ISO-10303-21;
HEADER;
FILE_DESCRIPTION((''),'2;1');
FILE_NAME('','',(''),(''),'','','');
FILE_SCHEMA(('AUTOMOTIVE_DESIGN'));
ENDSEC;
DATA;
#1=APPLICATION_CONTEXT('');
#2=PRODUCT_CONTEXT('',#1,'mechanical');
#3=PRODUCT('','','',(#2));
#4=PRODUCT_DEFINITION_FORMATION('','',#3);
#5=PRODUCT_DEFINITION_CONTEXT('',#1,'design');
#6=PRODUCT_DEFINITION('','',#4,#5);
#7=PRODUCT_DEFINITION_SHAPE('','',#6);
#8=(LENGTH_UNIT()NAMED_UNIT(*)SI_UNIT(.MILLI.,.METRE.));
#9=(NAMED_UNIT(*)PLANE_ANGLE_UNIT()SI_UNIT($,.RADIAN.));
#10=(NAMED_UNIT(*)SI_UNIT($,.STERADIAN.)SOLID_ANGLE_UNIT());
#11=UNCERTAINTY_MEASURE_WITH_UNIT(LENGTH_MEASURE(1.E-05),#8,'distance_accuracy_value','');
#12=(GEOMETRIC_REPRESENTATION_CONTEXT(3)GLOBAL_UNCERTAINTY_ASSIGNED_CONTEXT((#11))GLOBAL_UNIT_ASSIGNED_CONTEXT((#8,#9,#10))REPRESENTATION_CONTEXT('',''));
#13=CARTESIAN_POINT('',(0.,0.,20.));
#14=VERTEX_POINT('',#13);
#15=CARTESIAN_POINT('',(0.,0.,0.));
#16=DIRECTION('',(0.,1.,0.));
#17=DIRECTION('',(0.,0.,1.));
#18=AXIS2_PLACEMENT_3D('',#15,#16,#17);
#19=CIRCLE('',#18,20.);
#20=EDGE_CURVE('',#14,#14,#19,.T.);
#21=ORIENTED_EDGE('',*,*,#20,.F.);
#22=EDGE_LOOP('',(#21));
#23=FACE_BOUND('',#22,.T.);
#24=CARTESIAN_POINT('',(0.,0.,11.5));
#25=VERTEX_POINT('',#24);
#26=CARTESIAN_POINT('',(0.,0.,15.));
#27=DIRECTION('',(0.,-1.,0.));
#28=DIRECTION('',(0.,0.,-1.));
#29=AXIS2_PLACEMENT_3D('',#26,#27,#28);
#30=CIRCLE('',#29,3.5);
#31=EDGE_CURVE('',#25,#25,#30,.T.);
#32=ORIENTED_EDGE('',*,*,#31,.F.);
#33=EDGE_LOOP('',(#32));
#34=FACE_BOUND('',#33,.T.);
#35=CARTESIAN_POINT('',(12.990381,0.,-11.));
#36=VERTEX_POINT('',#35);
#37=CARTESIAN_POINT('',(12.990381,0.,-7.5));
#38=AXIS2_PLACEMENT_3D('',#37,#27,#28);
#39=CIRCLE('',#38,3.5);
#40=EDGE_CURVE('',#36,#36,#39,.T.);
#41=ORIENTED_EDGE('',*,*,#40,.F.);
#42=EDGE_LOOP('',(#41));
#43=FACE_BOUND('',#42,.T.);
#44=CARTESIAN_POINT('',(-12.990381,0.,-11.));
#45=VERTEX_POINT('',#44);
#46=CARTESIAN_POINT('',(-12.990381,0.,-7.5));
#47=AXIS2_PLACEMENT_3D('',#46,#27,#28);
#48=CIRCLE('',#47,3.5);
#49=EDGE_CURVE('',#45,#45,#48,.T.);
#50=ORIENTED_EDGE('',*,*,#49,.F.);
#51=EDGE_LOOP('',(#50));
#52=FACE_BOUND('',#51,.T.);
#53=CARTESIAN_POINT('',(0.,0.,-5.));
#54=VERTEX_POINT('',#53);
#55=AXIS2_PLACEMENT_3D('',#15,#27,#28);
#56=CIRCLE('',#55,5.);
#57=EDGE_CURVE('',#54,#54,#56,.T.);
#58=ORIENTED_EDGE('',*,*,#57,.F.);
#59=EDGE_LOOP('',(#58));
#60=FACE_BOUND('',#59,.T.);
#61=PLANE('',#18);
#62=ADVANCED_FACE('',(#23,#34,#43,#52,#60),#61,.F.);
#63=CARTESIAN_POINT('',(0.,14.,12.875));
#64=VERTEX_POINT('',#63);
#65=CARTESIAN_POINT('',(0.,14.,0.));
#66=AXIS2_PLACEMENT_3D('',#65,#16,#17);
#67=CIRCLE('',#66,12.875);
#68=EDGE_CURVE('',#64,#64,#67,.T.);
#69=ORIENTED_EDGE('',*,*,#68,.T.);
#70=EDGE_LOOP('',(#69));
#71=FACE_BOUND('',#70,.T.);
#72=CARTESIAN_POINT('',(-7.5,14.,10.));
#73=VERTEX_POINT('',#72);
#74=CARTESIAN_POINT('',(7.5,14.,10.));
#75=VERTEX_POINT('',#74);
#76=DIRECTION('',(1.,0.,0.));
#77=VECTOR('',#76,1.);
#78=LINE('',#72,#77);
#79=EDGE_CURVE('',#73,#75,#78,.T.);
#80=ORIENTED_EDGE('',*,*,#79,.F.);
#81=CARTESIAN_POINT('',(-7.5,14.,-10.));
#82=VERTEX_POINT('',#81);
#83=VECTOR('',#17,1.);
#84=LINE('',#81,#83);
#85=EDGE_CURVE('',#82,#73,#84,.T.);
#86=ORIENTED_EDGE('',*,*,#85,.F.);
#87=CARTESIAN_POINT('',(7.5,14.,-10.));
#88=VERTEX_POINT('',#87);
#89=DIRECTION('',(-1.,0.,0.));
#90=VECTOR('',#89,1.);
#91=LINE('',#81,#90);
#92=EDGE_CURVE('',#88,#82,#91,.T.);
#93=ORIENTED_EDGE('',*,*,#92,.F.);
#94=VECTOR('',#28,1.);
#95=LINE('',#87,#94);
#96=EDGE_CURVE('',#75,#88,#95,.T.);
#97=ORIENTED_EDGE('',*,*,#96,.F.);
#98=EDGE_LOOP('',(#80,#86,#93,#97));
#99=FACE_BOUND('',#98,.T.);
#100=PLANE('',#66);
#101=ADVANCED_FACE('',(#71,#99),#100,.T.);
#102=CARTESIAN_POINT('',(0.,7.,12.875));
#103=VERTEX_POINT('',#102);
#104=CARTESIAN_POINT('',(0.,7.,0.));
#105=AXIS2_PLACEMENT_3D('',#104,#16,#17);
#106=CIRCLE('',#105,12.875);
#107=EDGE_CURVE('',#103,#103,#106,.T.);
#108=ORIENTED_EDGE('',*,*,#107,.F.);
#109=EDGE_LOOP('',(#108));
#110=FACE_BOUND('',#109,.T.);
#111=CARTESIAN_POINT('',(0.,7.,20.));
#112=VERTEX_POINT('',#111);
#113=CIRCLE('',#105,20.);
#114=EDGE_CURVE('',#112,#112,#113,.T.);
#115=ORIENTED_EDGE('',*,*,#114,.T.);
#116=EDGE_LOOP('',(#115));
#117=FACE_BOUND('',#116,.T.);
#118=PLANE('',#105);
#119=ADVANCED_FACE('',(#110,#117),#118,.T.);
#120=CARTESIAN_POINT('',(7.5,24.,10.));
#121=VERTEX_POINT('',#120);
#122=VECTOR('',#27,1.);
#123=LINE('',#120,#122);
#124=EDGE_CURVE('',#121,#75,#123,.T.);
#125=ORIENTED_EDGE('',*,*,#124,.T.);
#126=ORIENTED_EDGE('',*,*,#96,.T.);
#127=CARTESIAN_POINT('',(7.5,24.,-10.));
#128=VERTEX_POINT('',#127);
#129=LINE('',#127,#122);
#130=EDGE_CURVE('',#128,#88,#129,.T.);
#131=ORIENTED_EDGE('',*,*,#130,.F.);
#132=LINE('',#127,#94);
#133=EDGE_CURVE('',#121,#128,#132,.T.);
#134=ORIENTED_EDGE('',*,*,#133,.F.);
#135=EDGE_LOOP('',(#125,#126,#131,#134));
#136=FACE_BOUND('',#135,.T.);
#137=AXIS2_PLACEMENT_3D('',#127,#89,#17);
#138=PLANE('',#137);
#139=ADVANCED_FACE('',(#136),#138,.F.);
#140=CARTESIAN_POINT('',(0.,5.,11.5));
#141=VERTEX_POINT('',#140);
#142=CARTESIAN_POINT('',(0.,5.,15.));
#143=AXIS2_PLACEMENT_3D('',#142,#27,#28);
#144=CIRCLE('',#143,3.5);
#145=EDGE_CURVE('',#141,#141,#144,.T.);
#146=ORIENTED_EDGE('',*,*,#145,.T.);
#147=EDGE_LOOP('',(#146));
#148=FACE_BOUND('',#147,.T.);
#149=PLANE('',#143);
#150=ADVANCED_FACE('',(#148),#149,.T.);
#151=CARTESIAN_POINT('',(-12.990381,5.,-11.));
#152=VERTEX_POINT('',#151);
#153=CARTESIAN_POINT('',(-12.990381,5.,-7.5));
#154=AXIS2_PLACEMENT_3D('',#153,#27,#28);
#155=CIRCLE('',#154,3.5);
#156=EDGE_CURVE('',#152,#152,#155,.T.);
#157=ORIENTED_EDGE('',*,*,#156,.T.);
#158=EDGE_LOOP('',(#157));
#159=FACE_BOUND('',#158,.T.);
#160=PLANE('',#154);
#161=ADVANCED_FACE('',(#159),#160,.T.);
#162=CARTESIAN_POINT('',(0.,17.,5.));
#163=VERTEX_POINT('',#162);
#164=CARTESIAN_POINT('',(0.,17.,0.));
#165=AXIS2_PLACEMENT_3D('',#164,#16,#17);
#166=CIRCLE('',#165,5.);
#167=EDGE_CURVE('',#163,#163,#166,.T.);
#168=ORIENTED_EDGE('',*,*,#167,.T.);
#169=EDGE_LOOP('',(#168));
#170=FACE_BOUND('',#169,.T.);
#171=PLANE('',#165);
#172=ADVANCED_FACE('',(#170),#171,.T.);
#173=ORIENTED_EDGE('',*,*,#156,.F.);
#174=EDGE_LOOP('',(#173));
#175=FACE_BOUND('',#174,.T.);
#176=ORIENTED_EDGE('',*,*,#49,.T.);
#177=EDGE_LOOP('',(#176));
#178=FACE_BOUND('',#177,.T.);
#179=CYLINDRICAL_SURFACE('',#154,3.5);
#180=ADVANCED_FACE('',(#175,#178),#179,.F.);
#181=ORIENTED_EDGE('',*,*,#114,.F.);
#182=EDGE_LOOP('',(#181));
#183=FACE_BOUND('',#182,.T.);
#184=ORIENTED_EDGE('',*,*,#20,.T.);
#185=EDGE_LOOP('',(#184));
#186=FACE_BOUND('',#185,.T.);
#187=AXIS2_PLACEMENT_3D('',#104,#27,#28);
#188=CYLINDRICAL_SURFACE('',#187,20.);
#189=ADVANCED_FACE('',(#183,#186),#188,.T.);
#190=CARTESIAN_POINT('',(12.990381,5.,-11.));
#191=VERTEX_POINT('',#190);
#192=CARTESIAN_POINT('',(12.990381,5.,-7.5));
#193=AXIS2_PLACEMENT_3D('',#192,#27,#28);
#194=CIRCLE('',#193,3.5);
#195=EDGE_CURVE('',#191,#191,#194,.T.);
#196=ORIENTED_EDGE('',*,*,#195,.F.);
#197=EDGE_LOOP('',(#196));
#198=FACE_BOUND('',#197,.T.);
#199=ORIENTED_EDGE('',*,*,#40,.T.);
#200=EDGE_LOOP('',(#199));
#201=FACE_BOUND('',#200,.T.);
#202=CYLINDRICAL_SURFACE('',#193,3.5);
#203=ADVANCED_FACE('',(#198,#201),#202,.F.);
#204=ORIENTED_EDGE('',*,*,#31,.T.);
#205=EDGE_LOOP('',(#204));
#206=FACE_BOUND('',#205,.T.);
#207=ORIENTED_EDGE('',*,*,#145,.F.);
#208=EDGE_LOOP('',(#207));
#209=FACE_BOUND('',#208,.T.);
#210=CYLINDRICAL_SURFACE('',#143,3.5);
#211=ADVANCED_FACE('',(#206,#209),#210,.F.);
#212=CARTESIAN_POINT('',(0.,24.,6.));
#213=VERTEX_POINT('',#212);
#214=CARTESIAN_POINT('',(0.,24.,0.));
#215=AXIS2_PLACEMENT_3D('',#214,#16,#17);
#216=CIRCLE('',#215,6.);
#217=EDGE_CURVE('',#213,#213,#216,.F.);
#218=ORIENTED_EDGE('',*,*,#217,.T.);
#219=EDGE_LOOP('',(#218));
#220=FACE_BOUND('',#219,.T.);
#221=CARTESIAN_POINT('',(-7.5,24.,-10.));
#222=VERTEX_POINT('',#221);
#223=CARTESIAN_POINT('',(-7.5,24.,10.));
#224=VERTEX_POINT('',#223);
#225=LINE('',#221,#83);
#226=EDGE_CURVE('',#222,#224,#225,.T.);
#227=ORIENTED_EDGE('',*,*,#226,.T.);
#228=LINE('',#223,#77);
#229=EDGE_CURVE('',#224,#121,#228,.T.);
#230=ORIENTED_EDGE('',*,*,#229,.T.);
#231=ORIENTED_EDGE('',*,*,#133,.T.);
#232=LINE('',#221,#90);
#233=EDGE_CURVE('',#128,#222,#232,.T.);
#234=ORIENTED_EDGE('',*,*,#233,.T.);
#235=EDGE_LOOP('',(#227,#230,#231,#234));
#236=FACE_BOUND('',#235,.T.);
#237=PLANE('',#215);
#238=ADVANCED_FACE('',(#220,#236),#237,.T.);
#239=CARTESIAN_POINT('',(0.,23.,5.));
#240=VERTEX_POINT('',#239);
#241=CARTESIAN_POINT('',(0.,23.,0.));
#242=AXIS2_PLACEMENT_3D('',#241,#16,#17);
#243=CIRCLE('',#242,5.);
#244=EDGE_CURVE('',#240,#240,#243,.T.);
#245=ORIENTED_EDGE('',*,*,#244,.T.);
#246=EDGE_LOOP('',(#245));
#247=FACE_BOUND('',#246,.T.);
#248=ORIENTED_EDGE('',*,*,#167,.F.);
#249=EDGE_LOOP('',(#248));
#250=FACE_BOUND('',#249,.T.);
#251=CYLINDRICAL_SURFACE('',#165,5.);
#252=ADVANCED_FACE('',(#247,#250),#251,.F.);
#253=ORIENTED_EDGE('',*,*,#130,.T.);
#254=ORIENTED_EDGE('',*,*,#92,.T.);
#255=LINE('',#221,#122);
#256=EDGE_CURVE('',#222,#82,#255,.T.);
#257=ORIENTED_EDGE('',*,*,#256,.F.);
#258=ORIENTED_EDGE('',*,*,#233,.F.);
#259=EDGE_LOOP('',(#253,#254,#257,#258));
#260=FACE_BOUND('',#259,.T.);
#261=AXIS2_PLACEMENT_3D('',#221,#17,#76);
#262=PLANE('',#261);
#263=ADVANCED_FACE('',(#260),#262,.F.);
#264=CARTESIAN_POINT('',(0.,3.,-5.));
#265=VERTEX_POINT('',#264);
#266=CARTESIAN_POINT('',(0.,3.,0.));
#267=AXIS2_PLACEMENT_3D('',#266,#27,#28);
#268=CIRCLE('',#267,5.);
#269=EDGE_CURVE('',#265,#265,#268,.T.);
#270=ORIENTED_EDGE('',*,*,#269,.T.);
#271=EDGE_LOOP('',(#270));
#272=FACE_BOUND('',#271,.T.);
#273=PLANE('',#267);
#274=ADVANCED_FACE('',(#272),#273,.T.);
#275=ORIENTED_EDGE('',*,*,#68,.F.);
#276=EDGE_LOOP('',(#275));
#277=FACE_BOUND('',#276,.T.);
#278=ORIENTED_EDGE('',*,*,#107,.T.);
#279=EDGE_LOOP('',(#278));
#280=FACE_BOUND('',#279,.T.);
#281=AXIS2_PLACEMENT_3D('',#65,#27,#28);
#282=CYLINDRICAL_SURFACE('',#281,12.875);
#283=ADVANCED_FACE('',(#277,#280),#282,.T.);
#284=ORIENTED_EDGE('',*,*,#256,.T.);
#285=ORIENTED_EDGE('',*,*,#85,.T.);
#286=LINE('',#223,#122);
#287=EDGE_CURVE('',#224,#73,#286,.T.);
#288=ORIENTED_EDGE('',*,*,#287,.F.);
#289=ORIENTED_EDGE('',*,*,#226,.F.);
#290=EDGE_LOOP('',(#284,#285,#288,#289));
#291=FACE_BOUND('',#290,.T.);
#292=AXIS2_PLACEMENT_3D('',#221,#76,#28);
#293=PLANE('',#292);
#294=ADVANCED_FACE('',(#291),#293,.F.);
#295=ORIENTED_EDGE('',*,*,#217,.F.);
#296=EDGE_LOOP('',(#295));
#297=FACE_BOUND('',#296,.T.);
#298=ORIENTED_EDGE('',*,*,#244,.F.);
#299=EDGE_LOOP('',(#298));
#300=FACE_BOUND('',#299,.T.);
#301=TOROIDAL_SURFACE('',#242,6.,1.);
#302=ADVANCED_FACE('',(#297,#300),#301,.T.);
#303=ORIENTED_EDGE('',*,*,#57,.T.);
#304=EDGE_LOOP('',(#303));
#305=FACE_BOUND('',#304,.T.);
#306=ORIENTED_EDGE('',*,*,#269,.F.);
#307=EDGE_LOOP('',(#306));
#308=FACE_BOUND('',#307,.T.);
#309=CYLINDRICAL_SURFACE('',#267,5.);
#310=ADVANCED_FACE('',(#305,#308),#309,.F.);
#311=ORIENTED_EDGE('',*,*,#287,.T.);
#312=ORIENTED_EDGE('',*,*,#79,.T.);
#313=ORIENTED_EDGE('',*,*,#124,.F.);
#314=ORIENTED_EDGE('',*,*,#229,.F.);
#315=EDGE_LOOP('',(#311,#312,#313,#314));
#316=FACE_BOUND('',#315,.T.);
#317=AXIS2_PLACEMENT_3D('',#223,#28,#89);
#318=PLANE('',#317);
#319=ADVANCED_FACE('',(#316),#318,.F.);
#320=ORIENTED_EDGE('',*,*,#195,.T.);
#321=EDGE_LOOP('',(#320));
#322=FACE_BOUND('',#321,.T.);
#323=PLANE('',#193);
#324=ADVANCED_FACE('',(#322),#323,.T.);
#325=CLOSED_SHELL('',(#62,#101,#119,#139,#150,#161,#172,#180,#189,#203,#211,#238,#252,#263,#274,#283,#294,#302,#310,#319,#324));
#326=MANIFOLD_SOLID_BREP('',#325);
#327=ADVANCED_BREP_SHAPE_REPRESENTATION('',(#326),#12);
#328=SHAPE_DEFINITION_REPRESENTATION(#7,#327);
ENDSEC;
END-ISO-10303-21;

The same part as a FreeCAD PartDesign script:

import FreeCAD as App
import Part
import Sketcher


def edges_at(feature, points):
    """Names of the edges that pass closest to the given points."""
    edges = feature.Shape.Edges
    near = lambda p: min(range(len(edges)), key=lambda i: edges[i].distToShape(Part.Vertex(*p))[0])
    return sorted({f"Edge{near(p) + 1}" for p in points})


def add_polygon(sketch, points):
    """Adds a closed chain of lines whose ends are joined by coincident constraints."""
    first, n = sketch.GeometryCount, len(points)
    for a, b in zip(points, points[1:] + points[:1]):
        sketch.addGeometry(Part.LineSegment(App.Vector(*a, 0), App.Vector(*b, 0)), False)
    for i in range(n):
        sketch.addConstraint(Sketcher.Constraint("Coincident", first + i, 2, first + (i + 1) % n, 1))

doc = App.newDocument("Part")
body = doc.addObject("PartDesign::Body", "Body")

# Sketch on XZ plane
sketch1 = doc.addObject("Sketcher::SketchObject", "Sketch")
body.addObject(sketch1)
sketch1.AttachmentSupport = (doc.XZ_Plane, [""])
sketch1.MapMode = "FlatFace"
sketch1.addGeometry(Part.Circle(App.Vector(0, 0, 0), App.Vector(0, 0, 1), 20), False)
sketch1.addConstraint(Sketcher.Constraint("Coincident", 0, 3, -1, 1))
sketch1.addConstraint(Sketcher.Constraint("Diameter", 0, 40.0))
pad1 = doc.addObject("PartDesign::Pad", "Pad")
body.addObject(pad1)
pad1.Profile = sketch1
pad1.Length = 7
pad1.Reversed = True

# Sketch on XZ plane
sketch2 = doc.addObject("Sketcher::SketchObject", "Sketch001")
body.addObject(sketch2)
sketch2.AttachmentSupport = (doc.XZ_Plane, [""])
sketch2.MapMode = "FlatFace"
sketch2.AttachmentOffset = App.Placement(App.Vector(0, 0, -7), App.Rotation())
sketch2.addGeometry(Part.Circle(App.Vector(0, 0, 0), App.Vector(0, 0, 1), 12.875), False)
sketch2.addConstraint(Sketcher.Constraint("Coincident", 0, 3, -1, 1))
sketch2.addConstraint(Sketcher.Constraint("Diameter", 0, 25.75))
pad2 = doc.addObject("PartDesign::Pad", "Pad001")
body.addObject(pad2)
pad2.Profile = sketch2
pad2.Length = 7
pad2.Reversed = True

# Sketch on XZ plane
sketch3 = doc.addObject("Sketcher::SketchObject", "Sketch002")
body.addObject(sketch3)
sketch3.AttachmentSupport = (doc.XZ_Plane, [""])
sketch3.MapMode = "FlatFace"
sketch3.AttachmentOffset = App.Placement(App.Vector(0, 0, -14), App.Rotation())
add_polygon(sketch3, [(-7.5, -10), (-7.5, 10), (7.5, 10), (7.5, -10)])  # lines 0-3
sketch3.addConstraint(Sketcher.Constraint("Vertical", 0))
sketch3.addConstraint(Sketcher.Constraint("Horizontal", 1))
sketch3.addConstraint(Sketcher.Constraint("Vertical", 2))
sketch3.addConstraint(Sketcher.Constraint("Horizontal", 3))
sketch3.addConstraint(Sketcher.Constraint("Symmetric", 0, 2, 2, 2, -1, 1))
sketch3.addConstraint(Sketcher.Constraint("DistanceX", 1, 1, 1, 2, 15.0))
sketch3.addConstraint(Sketcher.Constraint("DistanceY", 0, 1, 0, 2, 20.0))
pad3 = doc.addObject("PartDesign::Pad", "Pad002")
body.addObject(pad3)
pad3.Profile = sketch3
pad3.Length = 10
pad3.Reversed = True

# Sketch on XZ plane
sketch4 = doc.addObject("Sketcher::SketchObject", "Sketch003")
body.addObject(sketch4)
sketch4.AttachmentSupport = (doc.XZ_Plane, [""])
sketch4.MapMode = "FlatFace"
sketch4.AttachmentOffset = App.Placement(App.Vector(0, 0, -24), App.Rotation())
sketch4.addGeometry(Part.Circle(App.Vector(0, 0, 0), App.Vector(0, 0, 1), 5), False)
sketch4.addConstraint(Sketcher.Constraint("Coincident", 0, 3, -1, 1))
sketch4.addConstraint(Sketcher.Constraint("Diameter", 0, 10.0))
pocket1 = doc.addObject("PartDesign::Pocket", "Pocket")
body.addObject(pocket1)
pocket1.Profile = sketch4
pocket1.Length = 7
pocket1.Reversed = True
doc.recompute()

fillet = doc.addObject("PartDesign::Fillet", "Fillet")
body.addObject(fillet)
fillet.Base = (pocket1, edges_at(pocket1, [(0, 24, -5)]))
fillet.Radius = 1

# Sketch on XZ plane
sketch5 = doc.addObject("Sketcher::SketchObject", "Sketch004")
body.addObject(sketch5)
sketch5.AttachmentSupport = (doc.XZ_Plane, [""])
sketch5.MapMode = "FlatFace"
sketch5.AttachmentOffset = App.Placement(App.Vector(0, 0, -3), App.Rotation())
sketch5.addGeometry(Part.Circle(App.Vector(0, 0, 0), App.Vector(0, 0, 1), 5), False)
sketch5.addConstraint(Sketcher.Constraint("Coincident", 0, 3, -1, 1))
sketch5.addConstraint(Sketcher.Constraint("Diameter", 0, 10.0))
pocket2 = doc.addObject("PartDesign::Pocket", "Pocket001")
body.addObject(pocket2)
pocket2.Profile = sketch5
pocket2.Length = 3
pocket2.Reversed = True

# Sketch on XZ plane
sketch6 = doc.addObject("Sketcher::SketchObject", "Sketch005")
body.addObject(sketch6)
sketch6.AttachmentSupport = (doc.XZ_Plane, [""])
sketch6.MapMode = "FlatFace"
sketch6.addGeometry(Part.Circle(App.Vector(0, 15, 0), App.Vector(0, 0, 1), 3.5), False)
sketch6.addGeometry(Part.Circle(App.Vector(12.990381, -7.5, 0), App.Vector(0, 0, 1), 3.5), False)
sketch6.addGeometry(Part.Circle(App.Vector(-12.990381, -7.5, 0), App.Vector(0, 0, 1), 3.5), False)
sketch6.addConstraint(Sketcher.Constraint("Equal", 0, 1))
sketch6.addConstraint(Sketcher.Constraint("Equal", 1, 2))
sketch6.addConstraint(Sketcher.Constraint("Symmetric", 1, 3, 2, 3, -2))
sketch6.addConstraint(Sketcher.Constraint("PointOnObject", 0, 3, -2))
sketch6.addConstraint(Sketcher.Constraint("Diameter", 0, 7.0))
sketch6.addConstraint(Sketcher.Constraint("DistanceY", -1, 1, 0, 3, 15.0))
sketch6.addConstraint(Sketcher.Constraint("DistanceY", 1, 3, -1, 1, 7.5))
sketch6.addConstraint(Sketcher.Constraint("DistanceX", -1, 1, 1, 3, 12.990381))
pocket3 = doc.addObject("PartDesign::Pocket", "Pocket002")
body.addObject(pocket3)
pocket3.Profile = sketch6
pocket3.Length = 5

doc.recompute()
